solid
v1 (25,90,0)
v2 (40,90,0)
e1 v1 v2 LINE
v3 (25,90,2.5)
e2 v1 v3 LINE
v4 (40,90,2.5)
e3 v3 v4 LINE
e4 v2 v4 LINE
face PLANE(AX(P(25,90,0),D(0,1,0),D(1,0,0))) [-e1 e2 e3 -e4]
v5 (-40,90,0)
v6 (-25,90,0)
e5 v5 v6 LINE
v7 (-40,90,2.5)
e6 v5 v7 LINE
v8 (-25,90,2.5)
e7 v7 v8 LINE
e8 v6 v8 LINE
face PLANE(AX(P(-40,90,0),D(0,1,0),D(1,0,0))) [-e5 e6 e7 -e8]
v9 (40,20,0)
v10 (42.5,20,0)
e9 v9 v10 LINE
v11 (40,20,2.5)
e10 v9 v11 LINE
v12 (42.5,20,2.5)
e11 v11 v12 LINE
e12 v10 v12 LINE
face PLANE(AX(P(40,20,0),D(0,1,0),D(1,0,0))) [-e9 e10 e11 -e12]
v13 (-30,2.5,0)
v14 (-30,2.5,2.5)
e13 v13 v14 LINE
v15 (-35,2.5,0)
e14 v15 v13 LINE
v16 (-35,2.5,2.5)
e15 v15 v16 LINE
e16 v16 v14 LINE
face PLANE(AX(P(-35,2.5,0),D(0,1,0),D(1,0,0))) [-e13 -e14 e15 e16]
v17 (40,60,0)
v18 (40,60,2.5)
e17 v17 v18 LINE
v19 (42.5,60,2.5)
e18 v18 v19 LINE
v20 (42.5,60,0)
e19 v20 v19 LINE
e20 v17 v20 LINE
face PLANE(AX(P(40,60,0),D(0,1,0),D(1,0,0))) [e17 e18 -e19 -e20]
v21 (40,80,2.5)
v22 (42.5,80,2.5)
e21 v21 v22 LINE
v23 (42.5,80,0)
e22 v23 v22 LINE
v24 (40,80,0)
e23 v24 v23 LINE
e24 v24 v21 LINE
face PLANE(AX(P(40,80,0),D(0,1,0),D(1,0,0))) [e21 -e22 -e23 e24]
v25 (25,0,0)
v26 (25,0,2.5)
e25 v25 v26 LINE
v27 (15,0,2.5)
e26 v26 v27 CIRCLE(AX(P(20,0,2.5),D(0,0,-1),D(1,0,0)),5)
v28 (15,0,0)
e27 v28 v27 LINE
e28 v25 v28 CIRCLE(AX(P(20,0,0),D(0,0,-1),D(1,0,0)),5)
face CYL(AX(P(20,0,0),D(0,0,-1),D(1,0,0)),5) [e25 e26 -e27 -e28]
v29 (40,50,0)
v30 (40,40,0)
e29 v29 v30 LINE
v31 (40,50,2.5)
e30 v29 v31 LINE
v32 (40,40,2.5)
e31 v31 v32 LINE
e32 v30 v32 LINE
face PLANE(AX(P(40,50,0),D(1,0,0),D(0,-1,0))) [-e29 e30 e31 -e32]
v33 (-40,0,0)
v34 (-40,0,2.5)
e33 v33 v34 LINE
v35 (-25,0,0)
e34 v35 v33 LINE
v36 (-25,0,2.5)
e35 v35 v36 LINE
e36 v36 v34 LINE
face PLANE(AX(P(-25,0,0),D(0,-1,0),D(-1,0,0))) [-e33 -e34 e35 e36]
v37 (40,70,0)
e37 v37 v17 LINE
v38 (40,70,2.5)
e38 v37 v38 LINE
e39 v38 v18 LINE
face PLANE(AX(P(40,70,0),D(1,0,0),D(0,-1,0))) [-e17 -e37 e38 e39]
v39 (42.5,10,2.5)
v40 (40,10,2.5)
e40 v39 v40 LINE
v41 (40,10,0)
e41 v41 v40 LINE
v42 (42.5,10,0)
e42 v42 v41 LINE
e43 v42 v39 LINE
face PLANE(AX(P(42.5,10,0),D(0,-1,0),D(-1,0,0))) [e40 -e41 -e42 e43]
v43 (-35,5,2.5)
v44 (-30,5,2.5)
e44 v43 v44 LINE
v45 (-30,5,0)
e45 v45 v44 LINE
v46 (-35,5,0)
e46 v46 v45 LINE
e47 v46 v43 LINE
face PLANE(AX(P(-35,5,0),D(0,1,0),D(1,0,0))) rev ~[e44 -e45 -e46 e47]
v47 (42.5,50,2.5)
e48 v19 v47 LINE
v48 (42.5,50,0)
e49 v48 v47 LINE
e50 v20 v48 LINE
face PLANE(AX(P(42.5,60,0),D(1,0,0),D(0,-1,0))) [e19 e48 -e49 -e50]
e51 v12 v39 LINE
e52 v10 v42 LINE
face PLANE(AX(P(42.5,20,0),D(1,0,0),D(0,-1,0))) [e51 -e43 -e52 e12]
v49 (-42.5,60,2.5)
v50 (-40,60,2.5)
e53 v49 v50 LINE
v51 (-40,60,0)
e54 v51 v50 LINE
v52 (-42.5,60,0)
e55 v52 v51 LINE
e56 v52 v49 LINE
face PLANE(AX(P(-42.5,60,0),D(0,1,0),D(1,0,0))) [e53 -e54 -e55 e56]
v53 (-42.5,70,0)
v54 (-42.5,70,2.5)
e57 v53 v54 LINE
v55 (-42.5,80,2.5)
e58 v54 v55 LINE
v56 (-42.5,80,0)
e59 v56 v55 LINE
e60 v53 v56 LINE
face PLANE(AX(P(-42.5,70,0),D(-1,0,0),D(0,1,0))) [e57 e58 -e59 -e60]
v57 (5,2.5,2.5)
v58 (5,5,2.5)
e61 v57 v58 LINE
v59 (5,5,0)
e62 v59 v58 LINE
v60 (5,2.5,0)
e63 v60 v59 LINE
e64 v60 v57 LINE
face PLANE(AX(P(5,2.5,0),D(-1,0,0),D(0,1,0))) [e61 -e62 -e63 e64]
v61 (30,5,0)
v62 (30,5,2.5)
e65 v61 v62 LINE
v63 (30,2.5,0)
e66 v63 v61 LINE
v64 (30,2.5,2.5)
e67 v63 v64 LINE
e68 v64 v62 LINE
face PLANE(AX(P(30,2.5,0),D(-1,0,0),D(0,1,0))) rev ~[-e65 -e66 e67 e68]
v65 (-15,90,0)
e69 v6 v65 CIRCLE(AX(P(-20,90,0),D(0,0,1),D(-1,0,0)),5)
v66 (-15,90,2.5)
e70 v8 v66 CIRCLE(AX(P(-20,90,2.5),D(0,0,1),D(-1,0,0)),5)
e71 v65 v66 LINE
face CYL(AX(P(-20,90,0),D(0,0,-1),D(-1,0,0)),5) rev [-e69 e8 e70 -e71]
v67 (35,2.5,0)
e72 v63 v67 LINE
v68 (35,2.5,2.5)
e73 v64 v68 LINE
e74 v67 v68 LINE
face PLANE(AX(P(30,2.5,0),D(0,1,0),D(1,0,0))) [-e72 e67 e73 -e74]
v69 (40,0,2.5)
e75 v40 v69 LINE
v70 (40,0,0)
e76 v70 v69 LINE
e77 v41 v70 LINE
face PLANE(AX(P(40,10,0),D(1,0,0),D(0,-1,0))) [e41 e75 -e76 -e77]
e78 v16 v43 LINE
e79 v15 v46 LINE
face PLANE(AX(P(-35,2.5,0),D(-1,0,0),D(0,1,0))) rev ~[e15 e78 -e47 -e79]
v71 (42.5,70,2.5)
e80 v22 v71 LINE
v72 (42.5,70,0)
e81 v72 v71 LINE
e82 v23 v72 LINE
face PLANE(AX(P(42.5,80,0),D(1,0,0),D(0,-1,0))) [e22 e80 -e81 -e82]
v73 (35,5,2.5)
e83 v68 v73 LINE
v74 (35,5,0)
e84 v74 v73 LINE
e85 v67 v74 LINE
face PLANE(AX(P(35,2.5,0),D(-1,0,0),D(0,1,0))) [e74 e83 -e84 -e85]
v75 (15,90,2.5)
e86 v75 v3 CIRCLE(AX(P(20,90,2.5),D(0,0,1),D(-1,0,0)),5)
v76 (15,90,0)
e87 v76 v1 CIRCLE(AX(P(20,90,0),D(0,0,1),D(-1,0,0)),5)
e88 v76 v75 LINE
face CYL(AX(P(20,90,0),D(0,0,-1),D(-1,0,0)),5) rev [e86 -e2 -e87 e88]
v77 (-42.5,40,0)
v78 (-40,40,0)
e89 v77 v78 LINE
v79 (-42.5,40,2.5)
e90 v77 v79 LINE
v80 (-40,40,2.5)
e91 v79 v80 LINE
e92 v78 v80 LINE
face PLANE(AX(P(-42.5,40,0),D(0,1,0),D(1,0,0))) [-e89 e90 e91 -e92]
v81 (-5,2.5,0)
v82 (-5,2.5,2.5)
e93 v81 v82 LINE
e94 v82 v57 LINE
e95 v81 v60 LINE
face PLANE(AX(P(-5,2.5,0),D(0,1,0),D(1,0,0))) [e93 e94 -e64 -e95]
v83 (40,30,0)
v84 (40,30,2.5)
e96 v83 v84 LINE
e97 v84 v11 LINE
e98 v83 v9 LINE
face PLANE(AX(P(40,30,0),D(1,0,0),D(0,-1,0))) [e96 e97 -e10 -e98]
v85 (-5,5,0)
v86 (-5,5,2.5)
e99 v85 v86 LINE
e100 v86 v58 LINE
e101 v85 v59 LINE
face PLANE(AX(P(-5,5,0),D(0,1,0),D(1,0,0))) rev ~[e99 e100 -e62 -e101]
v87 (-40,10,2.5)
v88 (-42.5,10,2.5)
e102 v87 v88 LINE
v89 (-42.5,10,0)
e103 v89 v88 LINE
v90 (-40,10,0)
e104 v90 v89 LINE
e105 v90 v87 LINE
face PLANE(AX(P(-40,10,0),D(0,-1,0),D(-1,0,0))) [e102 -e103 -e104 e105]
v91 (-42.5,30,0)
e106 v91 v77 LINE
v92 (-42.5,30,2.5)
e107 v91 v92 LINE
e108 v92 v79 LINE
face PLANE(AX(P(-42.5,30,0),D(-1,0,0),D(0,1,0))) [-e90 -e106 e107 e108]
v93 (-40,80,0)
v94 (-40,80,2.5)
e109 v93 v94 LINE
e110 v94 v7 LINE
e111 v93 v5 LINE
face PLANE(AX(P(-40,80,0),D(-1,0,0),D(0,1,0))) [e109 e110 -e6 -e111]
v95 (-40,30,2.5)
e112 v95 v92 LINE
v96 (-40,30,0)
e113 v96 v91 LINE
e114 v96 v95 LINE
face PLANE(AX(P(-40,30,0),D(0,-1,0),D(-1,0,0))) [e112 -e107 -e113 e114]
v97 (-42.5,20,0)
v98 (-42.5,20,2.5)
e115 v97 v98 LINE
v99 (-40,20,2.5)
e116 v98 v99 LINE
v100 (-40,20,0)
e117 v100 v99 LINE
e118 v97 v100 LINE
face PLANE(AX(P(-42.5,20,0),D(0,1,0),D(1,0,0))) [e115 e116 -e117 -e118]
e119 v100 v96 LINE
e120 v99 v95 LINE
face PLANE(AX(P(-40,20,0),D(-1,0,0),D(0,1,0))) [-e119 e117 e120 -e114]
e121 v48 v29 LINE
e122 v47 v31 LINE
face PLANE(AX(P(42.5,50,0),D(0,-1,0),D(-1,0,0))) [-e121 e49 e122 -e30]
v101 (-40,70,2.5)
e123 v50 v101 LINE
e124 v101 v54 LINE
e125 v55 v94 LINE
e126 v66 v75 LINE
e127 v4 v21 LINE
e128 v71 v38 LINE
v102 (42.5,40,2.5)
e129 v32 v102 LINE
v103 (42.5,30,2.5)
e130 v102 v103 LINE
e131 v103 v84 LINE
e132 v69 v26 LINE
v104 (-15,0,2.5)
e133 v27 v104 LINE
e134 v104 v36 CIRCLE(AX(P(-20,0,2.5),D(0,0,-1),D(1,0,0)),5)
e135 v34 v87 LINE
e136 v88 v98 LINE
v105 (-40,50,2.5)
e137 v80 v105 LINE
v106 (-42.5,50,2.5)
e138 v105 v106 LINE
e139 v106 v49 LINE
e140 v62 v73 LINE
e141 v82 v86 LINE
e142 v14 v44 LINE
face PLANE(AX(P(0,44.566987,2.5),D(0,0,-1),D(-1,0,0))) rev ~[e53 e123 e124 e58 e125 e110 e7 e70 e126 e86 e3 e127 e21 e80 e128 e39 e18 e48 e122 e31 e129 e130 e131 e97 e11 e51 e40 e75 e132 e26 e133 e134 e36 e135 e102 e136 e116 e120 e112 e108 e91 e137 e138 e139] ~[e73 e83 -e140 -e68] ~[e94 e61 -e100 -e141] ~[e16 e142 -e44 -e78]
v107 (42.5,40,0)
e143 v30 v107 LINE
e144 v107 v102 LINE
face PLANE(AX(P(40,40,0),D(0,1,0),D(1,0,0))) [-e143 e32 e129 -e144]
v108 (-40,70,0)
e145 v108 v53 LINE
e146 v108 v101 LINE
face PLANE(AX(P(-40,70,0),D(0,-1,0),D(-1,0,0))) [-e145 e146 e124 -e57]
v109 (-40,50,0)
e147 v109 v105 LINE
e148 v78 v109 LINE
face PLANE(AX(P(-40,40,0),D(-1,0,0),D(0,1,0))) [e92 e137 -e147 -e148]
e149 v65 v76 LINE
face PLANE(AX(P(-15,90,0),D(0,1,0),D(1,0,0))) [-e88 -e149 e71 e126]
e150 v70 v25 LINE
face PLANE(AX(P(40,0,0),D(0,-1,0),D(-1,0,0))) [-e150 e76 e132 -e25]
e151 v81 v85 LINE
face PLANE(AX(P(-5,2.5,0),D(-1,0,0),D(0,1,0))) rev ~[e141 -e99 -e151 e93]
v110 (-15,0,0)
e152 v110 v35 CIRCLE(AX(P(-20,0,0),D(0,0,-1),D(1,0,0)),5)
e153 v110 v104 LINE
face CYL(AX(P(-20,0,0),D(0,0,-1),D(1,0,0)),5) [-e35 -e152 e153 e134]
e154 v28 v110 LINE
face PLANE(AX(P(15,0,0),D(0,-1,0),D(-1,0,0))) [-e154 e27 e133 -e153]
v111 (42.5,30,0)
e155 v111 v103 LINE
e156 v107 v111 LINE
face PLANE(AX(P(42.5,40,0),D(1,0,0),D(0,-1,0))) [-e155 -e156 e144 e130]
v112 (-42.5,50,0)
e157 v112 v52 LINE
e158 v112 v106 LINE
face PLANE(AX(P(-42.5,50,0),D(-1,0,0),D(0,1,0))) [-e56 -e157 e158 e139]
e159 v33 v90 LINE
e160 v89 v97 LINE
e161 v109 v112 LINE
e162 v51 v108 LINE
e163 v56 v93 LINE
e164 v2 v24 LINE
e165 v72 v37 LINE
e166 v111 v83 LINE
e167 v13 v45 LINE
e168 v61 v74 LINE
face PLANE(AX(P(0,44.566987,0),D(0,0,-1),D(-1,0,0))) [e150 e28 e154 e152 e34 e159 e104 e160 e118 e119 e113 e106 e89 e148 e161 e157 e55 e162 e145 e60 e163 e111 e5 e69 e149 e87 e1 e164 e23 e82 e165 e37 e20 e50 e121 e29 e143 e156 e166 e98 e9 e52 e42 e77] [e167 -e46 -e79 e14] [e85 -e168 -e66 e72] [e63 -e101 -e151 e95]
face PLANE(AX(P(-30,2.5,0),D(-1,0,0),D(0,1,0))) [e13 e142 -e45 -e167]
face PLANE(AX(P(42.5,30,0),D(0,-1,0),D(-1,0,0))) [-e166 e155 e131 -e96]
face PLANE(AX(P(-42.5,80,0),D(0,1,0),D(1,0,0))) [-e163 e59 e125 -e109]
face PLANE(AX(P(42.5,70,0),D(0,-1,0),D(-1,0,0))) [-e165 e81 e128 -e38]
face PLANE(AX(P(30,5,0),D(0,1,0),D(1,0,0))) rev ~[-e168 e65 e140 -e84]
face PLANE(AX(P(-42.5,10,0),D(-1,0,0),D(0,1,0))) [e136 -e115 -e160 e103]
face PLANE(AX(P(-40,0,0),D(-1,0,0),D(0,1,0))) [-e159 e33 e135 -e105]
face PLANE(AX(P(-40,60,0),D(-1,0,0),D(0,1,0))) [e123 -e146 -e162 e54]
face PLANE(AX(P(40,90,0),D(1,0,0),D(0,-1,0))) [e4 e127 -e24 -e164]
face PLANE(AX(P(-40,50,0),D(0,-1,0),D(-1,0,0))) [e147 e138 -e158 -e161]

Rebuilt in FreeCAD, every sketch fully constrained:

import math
import FreeCAD as App
import Part
import Sketcher
from FreeCAD import Vector
Q = App.Units.Quantity

doc = App.newDocument("Part")
body = doc.addObject("PartDesign::Body", "Body")

sketch1 = doc.addObject("Sketcher::SketchObject", "Sketch")
body.addObject(sketch1)
sketch1.AttachmentSupport = (doc.XY_Plane, [""])
sketch1.MapMode = "FlatFace"
sketch1.addGeometry([
    Part.LineSegment(Vector(42.5, 50, 0), Vector(42.5, 60, 0)),
    Part.LineSegment(Vector(42.5, 60, 0), Vector(40, 60, 0)),
    Part.LineSegment(Vector(40, 60, 0), Vector(40, 70, 0)),
    Part.LineSegment(Vector(40, 70, 0), Vector(42.5, 70, 0)),
    Part.LineSegment(Vector(42.5, 70, 0), Vector(42.5, 80, 0)),
    Part.LineSegment(Vector(42.5, 80, 0), Vector(40, 80, 0)),
    Part.LineSegment(Vector(40, 80, 0), Vector(40, 90, 0)),
    Part.LineSegment(Vector(40, 90, 0), Vector(25, 90, 0)),
    Part.ArcOfCircle(Part.Circle(Vector(20, 90, 0), Vector(0, 0, 1), 5), math.radians(180), math.radians(360)),
    Part.LineSegment(Vector(15, 90, 0), Vector(-15, 90, 0)),
    Part.ArcOfCircle(Part.Circle(Vector(-20, 90, 0), Vector(0, 0, 1), 5), math.radians(180), math.radians(360)),
    Part.LineSegment(Vector(-25, 90, 0), Vector(-40, 90, 0)),
    Part.LineSegment(Vector(-40, 90, 0), Vector(-40, 80, 0)),
    Part.LineSegment(Vector(-40, 80, 0), Vector(-42.5, 80, 0)),
    Part.LineSegment(Vector(-42.5, 80, 0), Vector(-42.5, 70, 0)),
    Part.LineSegment(Vector(-42.5, 70, 0), Vector(-40, 70, 0)),
    Part.LineSegment(Vector(-40, 70, 0), Vector(-40, 60, 0)),
    Part.LineSegment(Vector(-40, 60, 0), Vector(-42.5, 60, 0)),
    Part.LineSegment(Vector(-42.5, 60, 0), Vector(-42.5, 50, 0)),
    Part.LineSegment(Vector(-42.5, 50, 0), Vector(-40, 50, 0)),
    Part.LineSegment(Vector(-40, 50, 0), Vector(-40, 40, 0)),
    Part.LineSegment(Vector(-40, 40, 0), Vector(-42.5, 40, 0)),
    Part.LineSegment(Vector(-42.5, 40, 0), Vector(-42.5, 30, 0)),
    Part.LineSegment(Vector(-42.5, 30, 0), Vector(-40, 30, 0)),
    Part.LineSegment(Vector(-40, 30, 0), Vector(-40, 20, 0)),
    Part.LineSegment(Vector(-40, 20, 0), Vector(-42.5, 20, 0)),
    Part.LineSegment(Vector(-42.5, 20, 0), Vector(-42.5, 10, 0)),
    Part.LineSegment(Vector(-42.5, 10, 0), Vector(-40, 10, 0)),
    Part.LineSegment(Vector(-40, 10, 0), Vector(-40, 0, 0)),
    Part.LineSegment(Vector(-40, 0, 0), Vector(-25, 0, 0)),
    Part.ArcOfCircle(Part.Circle(Vector(-20, 0, 0), Vector(0, 0, 1), 5), math.radians(180), math.radians(360)),
    Part.LineSegment(Vector(-15, 0, 0), Vector(15, 0, 0)),
    Part.ArcOfCircle(Part.Circle(Vector(20, 0, 0), Vector(0, 0, 1), 5), math.radians(180), math.radians(360)),
    Part.LineSegment(Vector(25, 0, 0), Vector(40, 0, 0)),
    Part.LineSegment(Vector(40, 0, 0), Vector(40, 10, 0)),
    Part.LineSegment(Vector(40, 10, 0), Vector(42.5, 10, 0)),
    Part.LineSegment(Vector(42.5, 10, 0), Vector(42.5, 20, 0)),
    Part.LineSegment(Vector(42.5, 20, 0), Vector(40, 20, 0)),
    Part.LineSegment(Vector(40, 20, 0), Vector(40, 30, 0)),
    Part.LineSegment(Vector(40, 30, 0), Vector(42.5, 30, 0)),
    Part.LineSegment(Vector(42.5, 30, 0), Vector(42.5, 40, 0)),
    Part.LineSegment(Vector(42.5, 40, 0), Vector(40, 40, 0)),
    Part.LineSegment(Vector(40, 40, 0), Vector(40, 50, 0)),
    Part.LineSegment(Vector(40, 50, 0), Vector(42.5, 50, 0)),
    Part.LineSegment(Vector(30, 2.5, 0), Vector(30, 5, 0)),
    Part.LineSegment(Vector(30, 5, 0), Vector(35, 5, 0)),
    Part.LineSegment(Vector(35, 5, 0), Vector(35, 2.5, 0)),
    Part.LineSegment(Vector(35, 2.5, 0), Vector(30, 2.5, 0)),
    Part.LineSegment(Vector(-5, 2.5, 0), Vector(-5, 5, 0)),
    Part.LineSegment(Vector(-5, 5, 0), Vector(5, 5, 0)),
    Part.LineSegment(Vector(5, 5, 0), Vector(5, 2.5, 0)),
    Part.LineSegment(Vector(5, 2.5, 0), Vector(-5, 2.5, 0)),
    Part.LineSegment(Vector(-35, 2.5, 0), Vector(-35, 5, 0)),
    Part.LineSegment(Vector(-35, 5, 0), Vector(-30, 5, 0)),
    Part.LineSegment(Vector(-30, 5, 0), Vector(-30, 2.5, 0)),
    Part.LineSegment(Vector(-30, 2.5, 0), Vector(-35, 2.5, 0)),
], False)
sketch1.addConstraint([
    Sketcher.Constraint("Coincident", 0, 2, 1, 1),
    Sketcher.Constraint("Coincident", 1, 2, 2, 1),
    Sketcher.Constraint("Coincident", 2, 2, 3, 1),
    Sketcher.Constraint("Coincident", 3, 2, 4, 1),
    Sketcher.Constraint("Coincident", 4, 2, 5, 1),
    Sketcher.Constraint("Coincident", 5, 2, 6, 1),
    Sketcher.Constraint("Coincident", 6, 2, 7, 1),
    Sketcher.Constraint("Coincident", 7, 2, 8, 2),
    Sketcher.Constraint("Coincident", 8, 1, 9, 1),
    Sketcher.Constraint("Coincident", 9, 2, 10, 2),
    Sketcher.Constraint("Coincident", 10, 1, 11, 1),
    Sketcher.Constraint("Coincident", 11, 2, 12, 1),
    Sketcher.Constraint("Coincident", 12, 2, 13, 1),
    Sketcher.Constraint("Coincident", 13, 2, 14, 1),
    Sketcher.Constraint("Coincident", 14, 2, 15, 1),
    Sketcher.Constraint("Coincident", 15, 2, 16, 1),
    Sketcher.Constraint("Coincident", 16, 2, 17, 1),
    Sketcher.Constraint("Coincident", 17, 2, 18, 1),
    Sketcher.Constraint("Coincident", 18, 2, 19, 1),
    Sketcher.Constraint("Coincident", 19, 2, 20, 1),
    Sketcher.Constraint("Coincident", 20, 2, 21, 1),
    Sketcher.Constraint("Coincident", 21, 2, 22, 1),
    Sketcher.Constraint("Coincident", 22, 2, 23, 1),
    Sketcher.Constraint("Coincident", 23, 2, 24, 1),
    Sketcher.Constraint("Coincident", 24, 2, 25, 1),
    Sketcher.Constraint("Coincident", 25, 2, 26, 1),
    Sketcher.Constraint("Coincident", 26, 2, 27, 1),
    Sketcher.Constraint("Coincident", 27, 2, 28, 1),
    Sketcher.Constraint("Coincident", 28, 2, 29, 1),
    Sketcher.Constraint("Coincident", 29, 2, 30, 1),
    Sketcher.Constraint("Coincident", 30, 2, 31, 1),
    Sketcher.Constraint("Coincident", 31, 2, 32, 1),
    Sketcher.Constraint("Coincident", 32, 2, 33, 1),
    Sketcher.Constraint("Coincident", 33, 2, 34, 1),
    Sketcher.Constraint("Coincident", 34, 2, 35, 1),
    Sketcher.Constraint("Coincident", 35, 2, 36, 1),
    Sketcher.Constraint("Coincident", 36, 2, 37, 1),
    Sketcher.Constraint("Coincident", 37, 2, 38, 1),
    Sketcher.Constraint("Coincident", 38, 2, 39, 1),
    Sketcher.Constraint("Coincident", 39, 2, 40, 1),
    Sketcher.Constraint("Coincident", 40, 2, 41, 1),
    Sketcher.Constraint("Coincident", 41, 2, 42, 1),
    Sketcher.Constraint("Coincident", 42, 2, 43, 1),
    Sketcher.Constraint("Coincident", 43, 2, 0, 1),
    Sketcher.Constraint("Coincident", 44, 2, 45, 1),
    Sketcher.Constraint("Coincident", 45, 2, 46, 1),
    Sketcher.Constraint("Coincident", 46, 2, 47, 1),
    Sketcher.Constraint("Coincident", 47, 2, 44, 1),
    Sketcher.Constraint("Coincident", 48, 2, 49, 1),
    Sketcher.Constraint("Coincident", 49, 2, 50, 1),
    Sketcher.Constraint("Coincident", 50, 2, 51, 1),
    Sketcher.Constraint("Coincident", 51, 2, 48, 1),
    Sketcher.Constraint("Coincident", 52, 2, 53, 1),
    Sketcher.Constraint("Coincident", 53, 2, 54, 1),
    Sketcher.Constraint("Coincident", 54, 2, 55, 1),
    Sketcher.Constraint("Coincident", 55, 2, 52, 1),
    Sketcher.Constraint("Vertical", 0),
    Sketcher.Constraint("Horizontal", 1),
    Sketcher.Constraint("Vertical", 2),
    Sketcher.Constraint("Horizontal", 3),
    Sketcher.Constraint("Vertical", 4),
    Sketcher.Constraint("Horizontal", 5),
    Sketcher.Constraint("Vertical", 6),
    Sketcher.Constraint("Horizontal", 7),
    Sketcher.Constraint("Horizontal", 9),
    Sketcher.Constraint("Horizontal", 11),
    Sketcher.Constraint("Vertical", 12),
    Sketcher.Constraint("Horizontal", 13),
    Sketcher.Constraint("Vertical", 14),
    Sketcher.Constraint("Horizontal", 15),
    Sketcher.Constraint("Vertical", 16),
    Sketcher.Constraint("Horizontal", 17),
    Sketcher.Constraint("Vertical", 18),
    Sketcher.Constraint("Horizontal", 19),
    Sketcher.Constraint("Vertical", 20),
    Sketcher.Constraint("Horizontal", 21),
    Sketcher.Constraint("Vertical", 22),
    Sketcher.Constraint("Horizontal", 23),
    Sketcher.Constraint("Vertical", 24),
    Sketcher.Constraint("Horizontal", 25),
    Sketcher.Constraint("Vertical", 26),
    Sketcher.Constraint("Horizontal", 27),
    Sketcher.Constraint("Vertical", 28),
    Sketcher.Constraint("Horizontal", 29),
    Sketcher.Constraint("Horizontal", 31),
    Sketcher.Constraint("Horizontal", 33),
    Sketcher.Constraint("Vertical", 34),
    Sketcher.Constraint("Horizontal", 35),
    Sketcher.Constraint("Vertical", 36),
    Sketcher.Constraint("Horizontal", 37),
    Sketcher.Constraint("Vertical", 38),
    Sketcher.Constraint("Horizontal", 39),
    Sketcher.Constraint("Vertical", 40),
    Sketcher.Constraint("Horizontal", 41),
    Sketcher.Constraint("Vertical", 42),
    Sketcher.Constraint("Horizontal", 43),
    Sketcher.Constraint("Vertical", 44),
    Sketcher.Constraint("Horizontal", 45),
    Sketcher.Constraint("Vertical", 46),
    Sketcher.Constraint("Horizontal", 47),
    Sketcher.Constraint("Vertical", 48),
    Sketcher.Constraint("Horizontal", 49),
    Sketcher.Constraint("Vertical", 50),
    Sketcher.Constraint("Horizontal", 51),
    Sketcher.Constraint("Vertical", 52),
    Sketcher.Constraint("Horizontal", 53),
    Sketcher.Constraint("Vertical", 54),
    Sketcher.Constraint("Horizontal", 55),
    Sketcher.Constraint("Equal", 8, 10),
    Sketcher.Constraint("Equal", 10, 30),
    Sketcher.Constraint("Equal", 30, 32),
    Sketcher.Constraint("Symmetric", 30, 3, 32, 3, -1, 1),
    Sketcher.Constraint("Symmetric", 28, 2, 33, 2, -1, 1),
    Sketcher.Constraint("Symmetric", 8, 3, 10, 3, -2),
    Sketcher.Constraint("Symmetric", 6, 2, 11, 2, -2),
    Sketcher.Constraint("Symmetric", 4, 2, 13, 2, -2),
    Sketcher.Constraint("Symmetric", 2, 2, 15, 2, -2),
    Sketcher.Constraint("Symmetric", 0, 2, 17, 2, -2),
    Sketcher.Constraint("Symmetric", 26, 2, 35, 2, -2),
    Sketcher.Constraint("Symmetric", 24, 2, 37, 2, -2),
    Sketcher.Constraint("Symmetric", 22, 2, 39, 2, -2),
    Sketcher.Constraint("Symmetric", 20, 2, 41, 2, -2),
    Sketcher.Constraint("Symmetric", 45, 2, 52, 2, -2),
    Sketcher.Constraint("Symmetric", 47, 2, 54, 2, -2),
    Sketcher.Constraint("PointOnObject", 30, 3, -1),
    Sketcher.Constraint("PointOnObject", 28, 2, -1),
    Sketcher.Constraint("PointOnObject", 30, 2, -1),
    Sketcher.Constraint("Horizontal", 10, 3, 6, 2),
    Sketcher.Constraint("Horizontal", 7, 2, 8, 1),
    Sketcher.Constraint("Horizontal", 19, 2, 42, 2),
    Sketcher.Constraint("Horizontal", 45, 2, 48, 2),
    Sketcher.Constraint("Horizontal", 47, 2, 50, 2),
    Sketcher.Constraint("Vertical", 10, 3, 30, 3),
    Sketcher.Constraint("Vertical", 0, 2, 3, 2),
    Sketcher.Constraint("Vertical", 2, 2, 5, 2),
    Sketcher.Constraint("Vertical", 16, 2, 19, 2),
    Sketcher.Constraint("Vertical", 18, 2, 21, 2),
    Sketcher.Constraint("Vertical", 20, 2, 23, 2),
    Sketcher.Constraint("Vertical", 22, 2, 25, 2),
    Sketcher.Constraint("Vertical", 24, 2, 27, 2),
    Sketcher.Constraint("Equal", 51, 0),
    Sketcher.Constraint("Equal", 0, 2),
    Sketcher.Constraint("Equal", 2, 4),
    Sketcher.Constraint("Equal", 4, 6),
    Sketcher.Constraint("Equal", 18, 20),
    Sketcher.Constraint("Equal", 20, 22),
    Sketcher.Constraint("Equal", 22, 24),
    Sketcher.Constraint("Equal", 24, 26),
    Sketcher.Constraint("Equal", 26, 28),
    Sketcher.Constraint("Equal", 43, 44),
    Sketcher.Constraint("Radius", 8, Q("5 mm")),
    Sketcher.Constraint("DistanceX", 7, 2, 7, 1, Q("15 mm")),
    Sketcher.Constraint("DistanceX", 9, 2, 9, 1, Q("30 mm")),
    Sketcher.Constraint("DistanceX", 45, 1, 45, 2, Q("5 mm")),
    Sketcher.Constraint("DistanceX", 49, 1, 49, 2, Q("10 mm")),
    Sketcher.Constraint("DistanceX", 1, 2, 1, 1, Q("2.5 mm")),
    Sketcher.Constraint("DistanceX", -1, 1, 44, 2, Q("30 mm")),
    Sketcher.Constraint("DistanceY", -1, 1, 44, 2, Q("5 mm")),
    Sketcher.Constraint("DistanceX", 48, 2, -1, 1, Q("5 mm")),
])
pad1 = doc.addObject("PartDesign::Pad", "Pad")
body.addObject(pad1)
pad1.Profile = sketch1
pad1.Length = 2.5

doc.recompute()
